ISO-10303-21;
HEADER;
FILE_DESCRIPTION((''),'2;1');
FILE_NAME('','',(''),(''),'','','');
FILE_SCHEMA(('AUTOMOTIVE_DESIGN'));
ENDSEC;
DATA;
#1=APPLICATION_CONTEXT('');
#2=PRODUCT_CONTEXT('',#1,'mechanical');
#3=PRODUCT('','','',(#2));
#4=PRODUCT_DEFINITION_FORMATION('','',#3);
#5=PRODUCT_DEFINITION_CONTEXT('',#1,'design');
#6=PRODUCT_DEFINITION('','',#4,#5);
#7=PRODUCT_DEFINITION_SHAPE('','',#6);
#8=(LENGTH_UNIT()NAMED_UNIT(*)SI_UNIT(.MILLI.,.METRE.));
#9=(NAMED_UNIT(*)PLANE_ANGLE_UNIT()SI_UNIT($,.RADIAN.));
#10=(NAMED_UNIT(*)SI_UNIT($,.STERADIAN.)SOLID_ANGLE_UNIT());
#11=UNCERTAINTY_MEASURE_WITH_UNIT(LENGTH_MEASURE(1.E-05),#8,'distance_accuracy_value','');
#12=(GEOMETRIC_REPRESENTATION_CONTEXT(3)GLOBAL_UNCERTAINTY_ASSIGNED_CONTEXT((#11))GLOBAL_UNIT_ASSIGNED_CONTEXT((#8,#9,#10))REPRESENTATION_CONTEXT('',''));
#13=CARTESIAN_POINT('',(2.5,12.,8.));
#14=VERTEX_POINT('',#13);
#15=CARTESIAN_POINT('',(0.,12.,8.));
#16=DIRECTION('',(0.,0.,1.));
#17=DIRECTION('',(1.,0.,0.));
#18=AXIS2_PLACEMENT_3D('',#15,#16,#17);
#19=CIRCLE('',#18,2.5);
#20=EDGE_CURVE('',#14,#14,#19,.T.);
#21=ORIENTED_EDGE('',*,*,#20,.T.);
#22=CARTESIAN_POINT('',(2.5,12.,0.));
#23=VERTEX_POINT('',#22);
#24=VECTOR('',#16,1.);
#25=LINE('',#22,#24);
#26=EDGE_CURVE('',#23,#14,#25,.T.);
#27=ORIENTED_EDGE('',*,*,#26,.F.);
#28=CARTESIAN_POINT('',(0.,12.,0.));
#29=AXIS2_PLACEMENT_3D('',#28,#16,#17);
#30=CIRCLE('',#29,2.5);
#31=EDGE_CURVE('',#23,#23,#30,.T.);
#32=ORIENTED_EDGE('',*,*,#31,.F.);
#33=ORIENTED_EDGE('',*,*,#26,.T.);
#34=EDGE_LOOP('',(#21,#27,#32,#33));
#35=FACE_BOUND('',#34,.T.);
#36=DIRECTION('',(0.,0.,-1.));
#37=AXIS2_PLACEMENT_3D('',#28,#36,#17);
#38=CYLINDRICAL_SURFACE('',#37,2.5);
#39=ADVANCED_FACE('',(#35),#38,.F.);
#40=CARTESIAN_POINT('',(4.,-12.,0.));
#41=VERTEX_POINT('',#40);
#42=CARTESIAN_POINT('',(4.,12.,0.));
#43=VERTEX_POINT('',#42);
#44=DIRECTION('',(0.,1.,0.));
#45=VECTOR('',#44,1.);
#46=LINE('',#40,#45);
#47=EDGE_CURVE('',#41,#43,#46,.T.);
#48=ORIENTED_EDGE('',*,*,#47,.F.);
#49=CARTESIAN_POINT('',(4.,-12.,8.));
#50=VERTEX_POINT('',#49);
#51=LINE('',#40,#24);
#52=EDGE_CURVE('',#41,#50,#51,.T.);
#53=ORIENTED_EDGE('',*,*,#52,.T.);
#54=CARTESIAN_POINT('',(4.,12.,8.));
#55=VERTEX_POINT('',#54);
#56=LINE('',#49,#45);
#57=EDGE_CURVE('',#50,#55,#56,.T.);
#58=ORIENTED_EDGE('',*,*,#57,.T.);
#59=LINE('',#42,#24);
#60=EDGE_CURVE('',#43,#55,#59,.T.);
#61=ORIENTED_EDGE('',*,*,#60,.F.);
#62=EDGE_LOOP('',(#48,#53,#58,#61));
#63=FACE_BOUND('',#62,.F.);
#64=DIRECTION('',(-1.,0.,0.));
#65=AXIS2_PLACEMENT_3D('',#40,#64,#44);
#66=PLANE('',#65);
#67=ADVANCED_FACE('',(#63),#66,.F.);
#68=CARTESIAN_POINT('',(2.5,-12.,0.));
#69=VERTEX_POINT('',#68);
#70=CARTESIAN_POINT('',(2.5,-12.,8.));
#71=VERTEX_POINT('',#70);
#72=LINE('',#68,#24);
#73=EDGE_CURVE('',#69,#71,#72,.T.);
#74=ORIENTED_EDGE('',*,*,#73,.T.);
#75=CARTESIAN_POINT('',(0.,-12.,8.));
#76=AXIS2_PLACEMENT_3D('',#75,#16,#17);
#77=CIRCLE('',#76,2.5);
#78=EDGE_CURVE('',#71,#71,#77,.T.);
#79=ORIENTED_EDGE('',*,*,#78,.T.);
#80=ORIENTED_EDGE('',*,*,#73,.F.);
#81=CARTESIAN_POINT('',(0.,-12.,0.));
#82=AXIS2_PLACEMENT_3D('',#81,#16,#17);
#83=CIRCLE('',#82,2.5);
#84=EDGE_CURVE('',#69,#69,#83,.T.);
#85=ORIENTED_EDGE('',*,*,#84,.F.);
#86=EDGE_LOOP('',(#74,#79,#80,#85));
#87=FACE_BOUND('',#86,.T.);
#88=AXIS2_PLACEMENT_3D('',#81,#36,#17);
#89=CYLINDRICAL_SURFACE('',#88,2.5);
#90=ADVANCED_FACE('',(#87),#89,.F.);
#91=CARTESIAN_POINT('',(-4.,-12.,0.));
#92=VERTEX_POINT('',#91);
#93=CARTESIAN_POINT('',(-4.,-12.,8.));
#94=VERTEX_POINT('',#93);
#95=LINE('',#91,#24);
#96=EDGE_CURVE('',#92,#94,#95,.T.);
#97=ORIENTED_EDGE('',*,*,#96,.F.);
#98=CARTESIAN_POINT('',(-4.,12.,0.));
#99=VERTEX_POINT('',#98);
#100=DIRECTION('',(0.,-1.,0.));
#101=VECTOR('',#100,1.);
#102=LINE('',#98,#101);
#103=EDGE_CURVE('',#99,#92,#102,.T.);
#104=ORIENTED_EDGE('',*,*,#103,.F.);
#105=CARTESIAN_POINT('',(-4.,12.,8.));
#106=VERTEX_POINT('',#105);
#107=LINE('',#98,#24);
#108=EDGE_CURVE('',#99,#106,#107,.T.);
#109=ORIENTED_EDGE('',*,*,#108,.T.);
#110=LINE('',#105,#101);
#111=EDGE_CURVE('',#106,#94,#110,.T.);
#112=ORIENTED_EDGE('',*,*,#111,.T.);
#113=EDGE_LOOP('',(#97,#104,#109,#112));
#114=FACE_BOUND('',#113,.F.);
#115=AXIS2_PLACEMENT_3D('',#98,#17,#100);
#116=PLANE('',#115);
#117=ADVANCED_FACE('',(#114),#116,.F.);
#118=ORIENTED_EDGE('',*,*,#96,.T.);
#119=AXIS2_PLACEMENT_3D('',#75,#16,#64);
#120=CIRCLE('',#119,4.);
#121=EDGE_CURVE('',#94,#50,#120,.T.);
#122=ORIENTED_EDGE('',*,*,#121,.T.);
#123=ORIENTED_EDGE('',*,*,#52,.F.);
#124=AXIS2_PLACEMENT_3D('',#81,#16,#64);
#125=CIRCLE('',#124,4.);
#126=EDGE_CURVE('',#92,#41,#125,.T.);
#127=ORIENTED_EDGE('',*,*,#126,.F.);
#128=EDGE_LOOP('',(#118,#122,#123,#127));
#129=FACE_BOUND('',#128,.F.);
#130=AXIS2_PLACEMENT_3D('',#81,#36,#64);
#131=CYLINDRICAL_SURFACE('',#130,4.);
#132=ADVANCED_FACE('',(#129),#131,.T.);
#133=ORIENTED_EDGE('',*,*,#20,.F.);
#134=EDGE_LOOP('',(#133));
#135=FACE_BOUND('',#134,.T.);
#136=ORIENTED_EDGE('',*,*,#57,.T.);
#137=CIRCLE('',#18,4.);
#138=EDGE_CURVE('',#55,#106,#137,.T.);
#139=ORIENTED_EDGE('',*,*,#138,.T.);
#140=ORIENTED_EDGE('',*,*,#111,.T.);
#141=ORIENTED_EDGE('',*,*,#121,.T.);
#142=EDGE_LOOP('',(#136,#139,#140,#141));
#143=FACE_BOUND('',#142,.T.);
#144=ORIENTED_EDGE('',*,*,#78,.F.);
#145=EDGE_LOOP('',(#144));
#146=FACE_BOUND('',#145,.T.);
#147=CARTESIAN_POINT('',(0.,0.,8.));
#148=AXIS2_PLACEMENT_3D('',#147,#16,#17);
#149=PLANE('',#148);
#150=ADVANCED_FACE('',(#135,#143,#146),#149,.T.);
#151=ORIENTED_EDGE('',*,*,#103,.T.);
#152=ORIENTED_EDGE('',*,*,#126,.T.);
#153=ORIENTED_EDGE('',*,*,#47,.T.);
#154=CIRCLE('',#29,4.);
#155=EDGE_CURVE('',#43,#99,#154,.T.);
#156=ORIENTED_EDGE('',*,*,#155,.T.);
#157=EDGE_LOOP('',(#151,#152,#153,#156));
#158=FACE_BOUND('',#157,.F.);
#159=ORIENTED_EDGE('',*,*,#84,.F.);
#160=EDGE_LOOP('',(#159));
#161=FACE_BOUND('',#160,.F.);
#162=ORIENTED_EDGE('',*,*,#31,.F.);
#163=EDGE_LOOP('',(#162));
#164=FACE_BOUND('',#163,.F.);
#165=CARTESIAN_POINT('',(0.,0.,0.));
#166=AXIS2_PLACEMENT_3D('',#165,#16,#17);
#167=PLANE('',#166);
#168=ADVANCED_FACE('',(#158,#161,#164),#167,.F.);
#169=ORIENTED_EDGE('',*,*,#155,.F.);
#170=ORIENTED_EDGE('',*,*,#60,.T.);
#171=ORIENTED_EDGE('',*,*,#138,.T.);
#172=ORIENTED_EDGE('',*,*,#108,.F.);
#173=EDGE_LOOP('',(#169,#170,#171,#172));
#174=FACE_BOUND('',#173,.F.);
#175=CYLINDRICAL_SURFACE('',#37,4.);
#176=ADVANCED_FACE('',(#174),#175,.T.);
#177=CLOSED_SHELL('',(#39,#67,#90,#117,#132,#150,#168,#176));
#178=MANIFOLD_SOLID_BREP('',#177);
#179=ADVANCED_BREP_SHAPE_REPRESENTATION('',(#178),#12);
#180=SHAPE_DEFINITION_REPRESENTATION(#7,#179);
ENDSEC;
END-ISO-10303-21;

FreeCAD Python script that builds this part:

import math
import FreeCAD as App
import Part
import Sketcher
from FreeCAD import Vector
Q = App.Units.Quantity

doc = App.newDocument("Part")
params = doc.addObject("Spreadsheet::Sheet", "Params")
for row, (alias, value) in enumerate([
    ("sketch1_diameter", "5 mm"),
    ("sketch1_radius", "4 mm"),
    ("sketch1_height", "24 mm"),
    ("pad1_length", "8 mm"),
], start=1):
    params.set(f"A{row}", alias)
    params.set(f"B{row}", "=" + value)
    params.setAlias(f"B{row}", alias)

body = doc.addObject("PartDesign::Body", "Body")

# Sketch on XY plane
sketch1 = body.newObject("Sketcher::SketchObject", "Sketch")
sketch1.AttachmentSupport = (doc.getObject("XY_Plane"), [""])
sketch1.MapMode = "FlatFace"
sketch1.addGeometry([
    Part.ArcOfCircle(Part.Circle(Vector(0, -12, 0), Vector(0, 0, 1), 4), math.radians(180), math.radians(360)),  # 0
    Part.LineSegment(Vector(4, -12, 0), Vector(4, 12, 0)),  # 1
    Part.ArcOfCircle(Part.Circle(Vector(0, 12, 0), Vector(0, 0, 1), 4), math.radians(0), math.radians(180)),  # 2
    Part.LineSegment(Vector(-4, 12, 0), Vector(-4, -12, 0)),  # 3
    Part.Circle(Vector(0, -12, 0), Vector(0, 0, 1), 2.5),  # 4
    Part.Circle(Vector(0, 12, 0), Vector(0, 0, 1), 2.5),  # 5
], False)
sketch1.addConstraint([
    Sketcher.Constraint("Tangent", 0, 2, 1, 1),
    Sketcher.Constraint("Tangent", 1, 2, 2, 1),
    Sketcher.Constraint("Tangent", 2, 2, 3, 1),
    Sketcher.Constraint("Tangent", 3, 2, 0, 1),
    Sketcher.Constraint("Vertical", 1),
    Sketcher.Constraint("Vertical", 3),
    Sketcher.Constraint("Coincident", 4, 3, 0, 3),
    Sketcher.Constraint("Coincident", 5, 3, 2, 3),
    Sketcher.Constraint("Equal", 4, 5),
    Sketcher.Constraint("Symmetric", 0, 3, 2, 3, -1, 1),
    Sketcher.Constraint("Diameter", 4, Q("5 mm")),
    Sketcher.Constraint("Radius", 0, Q("4 mm")),
    Sketcher.Constraint("DistanceY", 1, 1, 1, 2, Q("24 mm")),
])
sketch1.setExpression("Constraints[10]", "Params.sketch1_diameter")
sketch1.setExpression("Constraints[11]", "Params.sketch1_radius")
sketch1.setExpression("Constraints[12]", "Params.sketch1_height")
pad1 = body.newObject("PartDesign::Pad", "Pad")
pad1.Profile = sketch1
pad1.setExpression("Length", "Params.pad1_length")

doc.recompute()
